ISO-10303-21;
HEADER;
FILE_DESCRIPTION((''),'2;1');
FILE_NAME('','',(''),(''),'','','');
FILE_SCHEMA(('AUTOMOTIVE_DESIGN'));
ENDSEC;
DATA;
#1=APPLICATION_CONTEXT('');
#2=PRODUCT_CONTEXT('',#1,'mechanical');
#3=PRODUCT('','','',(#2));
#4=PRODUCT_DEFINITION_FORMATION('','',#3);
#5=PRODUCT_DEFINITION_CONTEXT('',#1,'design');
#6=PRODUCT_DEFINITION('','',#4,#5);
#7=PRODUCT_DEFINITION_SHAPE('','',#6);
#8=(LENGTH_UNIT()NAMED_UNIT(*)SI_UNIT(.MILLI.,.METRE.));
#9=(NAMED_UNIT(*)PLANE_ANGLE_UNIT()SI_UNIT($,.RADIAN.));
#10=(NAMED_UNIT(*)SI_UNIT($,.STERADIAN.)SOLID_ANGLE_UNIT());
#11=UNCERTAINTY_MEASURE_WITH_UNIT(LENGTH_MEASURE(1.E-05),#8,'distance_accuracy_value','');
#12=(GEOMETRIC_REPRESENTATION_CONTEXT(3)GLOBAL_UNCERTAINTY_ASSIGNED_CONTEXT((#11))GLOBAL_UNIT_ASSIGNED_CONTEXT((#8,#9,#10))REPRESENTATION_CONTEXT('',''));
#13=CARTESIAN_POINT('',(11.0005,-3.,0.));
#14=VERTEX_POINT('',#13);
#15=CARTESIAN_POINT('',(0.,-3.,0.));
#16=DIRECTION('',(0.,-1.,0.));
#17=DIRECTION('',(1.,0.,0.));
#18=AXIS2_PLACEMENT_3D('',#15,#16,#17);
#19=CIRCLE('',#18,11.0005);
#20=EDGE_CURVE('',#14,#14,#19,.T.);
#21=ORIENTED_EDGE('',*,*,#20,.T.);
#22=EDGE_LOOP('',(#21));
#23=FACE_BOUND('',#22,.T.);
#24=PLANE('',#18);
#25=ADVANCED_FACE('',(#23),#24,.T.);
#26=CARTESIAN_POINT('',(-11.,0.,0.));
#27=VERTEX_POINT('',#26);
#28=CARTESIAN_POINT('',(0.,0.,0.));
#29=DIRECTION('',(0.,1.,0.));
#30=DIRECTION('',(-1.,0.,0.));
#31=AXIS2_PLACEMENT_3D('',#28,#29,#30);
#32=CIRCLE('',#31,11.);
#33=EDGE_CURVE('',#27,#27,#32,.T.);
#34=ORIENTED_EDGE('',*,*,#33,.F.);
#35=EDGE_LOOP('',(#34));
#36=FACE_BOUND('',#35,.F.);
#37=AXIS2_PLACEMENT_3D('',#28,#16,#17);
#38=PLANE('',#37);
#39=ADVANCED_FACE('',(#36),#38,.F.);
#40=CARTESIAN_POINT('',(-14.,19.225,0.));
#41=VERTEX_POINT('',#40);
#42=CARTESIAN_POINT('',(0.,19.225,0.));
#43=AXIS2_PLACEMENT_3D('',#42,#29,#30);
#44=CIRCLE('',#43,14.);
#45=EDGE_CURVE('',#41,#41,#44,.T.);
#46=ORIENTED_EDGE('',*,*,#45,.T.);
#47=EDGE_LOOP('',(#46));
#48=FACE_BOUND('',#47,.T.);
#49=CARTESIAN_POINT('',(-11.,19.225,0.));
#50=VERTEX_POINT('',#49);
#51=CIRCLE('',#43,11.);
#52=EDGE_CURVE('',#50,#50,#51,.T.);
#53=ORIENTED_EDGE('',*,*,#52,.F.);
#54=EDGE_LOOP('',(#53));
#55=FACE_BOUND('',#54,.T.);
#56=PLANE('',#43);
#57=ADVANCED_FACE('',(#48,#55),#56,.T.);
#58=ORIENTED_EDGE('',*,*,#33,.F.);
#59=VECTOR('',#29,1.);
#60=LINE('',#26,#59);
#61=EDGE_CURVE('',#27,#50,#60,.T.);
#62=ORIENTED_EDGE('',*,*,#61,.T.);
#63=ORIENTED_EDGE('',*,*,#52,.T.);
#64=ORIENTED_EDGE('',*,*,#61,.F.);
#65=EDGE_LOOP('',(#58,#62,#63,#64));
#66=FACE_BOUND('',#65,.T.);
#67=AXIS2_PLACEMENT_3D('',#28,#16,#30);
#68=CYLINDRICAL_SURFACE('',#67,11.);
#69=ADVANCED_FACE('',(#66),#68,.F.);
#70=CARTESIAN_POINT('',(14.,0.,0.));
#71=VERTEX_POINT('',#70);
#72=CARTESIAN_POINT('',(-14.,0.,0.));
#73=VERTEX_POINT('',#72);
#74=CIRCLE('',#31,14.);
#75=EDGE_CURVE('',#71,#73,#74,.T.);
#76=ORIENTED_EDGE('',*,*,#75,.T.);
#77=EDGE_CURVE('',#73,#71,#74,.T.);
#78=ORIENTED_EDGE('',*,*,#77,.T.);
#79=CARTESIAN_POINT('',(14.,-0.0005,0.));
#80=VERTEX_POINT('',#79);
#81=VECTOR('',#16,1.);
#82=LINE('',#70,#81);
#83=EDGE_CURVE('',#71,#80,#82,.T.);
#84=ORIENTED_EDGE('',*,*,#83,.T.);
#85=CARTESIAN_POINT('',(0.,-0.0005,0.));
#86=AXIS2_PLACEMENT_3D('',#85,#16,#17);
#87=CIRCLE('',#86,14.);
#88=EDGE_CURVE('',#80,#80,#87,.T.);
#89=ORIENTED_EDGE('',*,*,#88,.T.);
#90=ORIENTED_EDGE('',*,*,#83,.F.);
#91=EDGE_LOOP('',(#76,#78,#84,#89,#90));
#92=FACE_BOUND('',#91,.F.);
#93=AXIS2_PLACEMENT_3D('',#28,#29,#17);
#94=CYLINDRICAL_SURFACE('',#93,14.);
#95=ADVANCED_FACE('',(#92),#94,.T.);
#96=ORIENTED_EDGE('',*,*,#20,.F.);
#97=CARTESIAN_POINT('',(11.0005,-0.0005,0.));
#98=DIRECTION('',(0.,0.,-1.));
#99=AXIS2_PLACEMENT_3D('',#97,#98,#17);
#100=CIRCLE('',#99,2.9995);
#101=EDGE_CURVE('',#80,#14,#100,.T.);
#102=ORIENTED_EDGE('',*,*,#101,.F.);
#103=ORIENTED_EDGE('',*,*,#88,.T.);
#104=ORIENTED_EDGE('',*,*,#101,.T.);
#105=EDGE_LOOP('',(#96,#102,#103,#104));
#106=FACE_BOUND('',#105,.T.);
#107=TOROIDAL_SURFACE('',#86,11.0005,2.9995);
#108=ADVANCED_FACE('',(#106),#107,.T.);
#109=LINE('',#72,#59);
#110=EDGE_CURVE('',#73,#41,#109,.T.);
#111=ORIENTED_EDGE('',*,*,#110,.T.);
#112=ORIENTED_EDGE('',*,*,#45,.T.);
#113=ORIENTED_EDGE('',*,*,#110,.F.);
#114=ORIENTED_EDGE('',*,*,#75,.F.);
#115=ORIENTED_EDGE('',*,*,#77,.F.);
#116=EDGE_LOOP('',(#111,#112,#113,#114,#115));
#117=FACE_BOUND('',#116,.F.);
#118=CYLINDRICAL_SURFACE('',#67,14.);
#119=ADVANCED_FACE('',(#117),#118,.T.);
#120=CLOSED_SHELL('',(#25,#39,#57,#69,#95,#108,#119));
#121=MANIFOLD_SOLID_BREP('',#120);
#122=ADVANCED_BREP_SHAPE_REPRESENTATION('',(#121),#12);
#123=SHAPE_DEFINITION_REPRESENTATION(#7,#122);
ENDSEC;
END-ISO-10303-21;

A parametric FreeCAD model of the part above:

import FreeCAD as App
import Part
import Sketcher

V = App.Vector


def edges_at(feature, points):
    """Names of the edges that pass closest to the given points."""
    edges = feature.Shape.Edges
    near = lambda p: min(range(len(edges)), key=lambda i: edges[i].distToShape(Part.Vertex(*p))[0])
    return sorted({f"Edge{near(p) + 1}" for p in points})

doc = App.newDocument("Part")
body = doc.addObject("PartDesign::Body", "Body")

sketch1 = body.newObject("Sketcher::SketchObject", "Sketch")
sketch1.AttachmentSupport = (doc.getObject("XZ_Plane"), [""])
sketch1.MapMode = "FlatFace"
sketch1.addGeometry([
    Part.Circle(V(0, 0, 0), V(0, 0, 1), 14),
    Part.Circle(V(0, 0, 0), V(0, 0, 1), 11),
], False)
sketch1.addConstraint([
    Sketcher.Constraint("Coincident", 0, 3, -1, 1),
    Sketcher.Constraint("Coincident", 1, 3, -1, 1),
    Sketcher.Constraint("Diameter", 1, 22.0),
    Sketcher.Constraint("Diameter", 0, 28.0),
])
pad1 = body.newObject("PartDesign::Pad", "Pad")
pad1.Profile = sketch1
pad1.Length = 19.225
pad1.Reversed = True

sketch2 = body.newObject("Sketcher::SketchObject", "Sketch001")
sketch2.AttachmentSupport = (doc.getObject("XZ_Plane"), [""])
sketch2.MapMode = "FlatFace"
sketch2.addGeometry(Part.Circle(V(0, 0, 0), V(0, 0, 1), 14), False)
sketch2.addConstraint([
    Sketcher.Constraint("Coincident", 0, 3, -1, 1),
    Sketcher.Constraint("Diameter", 0, 28.0),
])
pad2 = body.newObject("PartDesign::Pad", "Pad001")
pad2.Profile = sketch2
pad2.Length = 3
doc.recompute()

fillet = body.newObject("PartDesign::Fillet", "Fillet")
fillet.Base = (pad2, edges_at(pad2, [(-14, -3, 0)]))
fillet.Radius = 3

doc.recompute()
